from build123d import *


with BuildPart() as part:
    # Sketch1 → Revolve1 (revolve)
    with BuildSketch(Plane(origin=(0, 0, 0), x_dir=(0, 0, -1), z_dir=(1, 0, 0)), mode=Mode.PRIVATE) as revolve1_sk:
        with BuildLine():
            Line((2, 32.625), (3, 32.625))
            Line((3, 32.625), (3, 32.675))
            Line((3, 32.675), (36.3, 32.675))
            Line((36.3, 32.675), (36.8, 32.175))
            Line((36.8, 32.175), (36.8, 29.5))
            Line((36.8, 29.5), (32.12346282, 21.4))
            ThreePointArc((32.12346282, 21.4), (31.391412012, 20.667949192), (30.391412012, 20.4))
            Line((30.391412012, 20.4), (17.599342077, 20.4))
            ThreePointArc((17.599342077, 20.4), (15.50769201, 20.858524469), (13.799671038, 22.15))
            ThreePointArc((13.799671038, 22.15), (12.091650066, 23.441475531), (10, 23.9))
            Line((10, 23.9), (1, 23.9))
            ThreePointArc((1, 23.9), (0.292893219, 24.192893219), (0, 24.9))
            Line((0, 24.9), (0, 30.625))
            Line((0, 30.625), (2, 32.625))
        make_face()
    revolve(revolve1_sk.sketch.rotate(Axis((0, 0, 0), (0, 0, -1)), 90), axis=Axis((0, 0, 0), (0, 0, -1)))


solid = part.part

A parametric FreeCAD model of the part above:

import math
import FreeCAD as App
import Part
import Sketcher

V = App.Vector
Q = App.Units.Quantity

doc = App.newDocument("Part")
body = doc.addObject("PartDesign::Body", "Body")

# Sketch on YZ plane
sketch1 = body.newObject("Sketcher::SketchObject", "Sketch")
sketch1.AttachmentSupport = (doc.getObject("YZ_Plane"), [""])
sketch1.MapMode = "FlatFace"
sketch1.addGeometry(Part.LineSegment(V(32.625, -3, 0), V(32.625, -2, 0)), False)
sketch1.addGeometry(Part.LineSegment(V(32.625, -2, 0), V(30.625, 0, 0)), False)
sketch1.addGeometry(Part.LineSegment(V(30.625, 0, 0), V(24.9, 0, 0)), False)
sketch1.addGeometry(Part.ArcOfCircle(Part.Circle(V(24.9, -1, 0), V(0, 0, 1), 1), math.radians(90), math.radians(180)), False)
sketch1.addGeometry(Part.LineSegment(V(23.9, -1, 0), V(23.9, -10, 0)), False)
sketch1.addGeometry(Part.ArcOfCircle(Part.Circle(V(18.9, -10, 0), V(0, 0, 1), 5), math.radians(-49), math.radians(0)), False)
sketch1.addGeometry(Part.ArcOfCircle(Part.Circle(V(25.4, -17.599, 0), V(0, 0, 1), 5), math.radians(131), math.radians(180)), False)
sketch1.addGeometry(Part.LineSegment(V(20.4, -17.599, 0), V(20.4, -30.391, 0)), False)
sketch1.addGeometry(Part.ArcOfCircle(Part.Circle(V(22.4, -30.391, 0), V(0, 0, 1), 2), math.radians(180), math.radians(240)), False)
sketch1.addGeometry(Part.LineSegment(V(21.4, -32.123, 0), V(29.5, -36.8, 0)), False)
sketch1.addGeometry(Part.LineSegment(V(29.5, -36.8, 0), V(32.175, -36.8, 0)), False)
sketch1.addGeometry(Part.LineSegment(V(32.175, -36.8, 0), V(32.675, -36.3, 0)), False)
sketch1.addGeometry(Part.LineSegment(V(32.675, -36.3, 0), V(32.675, -3, 0)), False)
sketch1.addGeometry(Part.LineSegment(V(32.675, -3, 0), V(32.625, -3, 0)), False)
sketch1.addConstraint(Sketcher.Constraint("Coincident", 0, 2, 1, 1))
sketch1.addConstraint(Sketcher.Constraint("Coincident", 1, 2, 2, 1))
sketch1.addConstraint(Sketcher.Constraint("Tangent", 2, 2, 3, 1))
sketch1.addConstraint(Sketcher.Constraint("Tangent", 3, 2, 4, 1))
sketch1.addConstraint(Sketcher.Constraint("Tangent", 4, 2, 5, 2))
sketch1.addConstraint(Sketcher.Constraint("Tangent", 5, 1, 6, 1))
sketch1.addConstraint(Sketcher.Constraint("Tangent", 6, 2, 7, 1))
sketch1.addConstraint(Sketcher.Constraint("Tangent", 7, 2, 8, 1))
sketch1.addConstraint(Sketcher.Constraint("Tangent", 8, 2, 9, 1))
sketch1.addConstraint(Sketcher.Constraint("Coincident", 9, 2, 10, 1))
sketch1.addConstraint(Sketcher.Constraint("Coincident", 10, 2, 11, 1))
sketch1.addConstraint(Sketcher.Constraint("Coincident", 11, 2, 12, 1))
sketch1.addConstraint(Sketcher.Constraint("Coincident", 12, 2, 13, 1))
sketch1.addConstraint(Sketcher.Constraint("Coincident", 13, 2, 0, 1))
sketch1.addConstraint(Sketcher.Constraint("Vertical", 0))
sketch1.addConstraint(Sketcher.Constraint("Horizontal", 2))
sketch1.addConstraint(Sketcher.Constraint("Vertical", 4))
sketch1.addConstraint(Sketcher.Constraint("Vertical", 7))
sketch1.addConstraint(Sketcher.Constraint("Horizontal", 10))
sketch1.addConstraint(Sketcher.Constraint("Vertical", 12))
sketch1.addConstraint(Sketcher.Constraint("Horizontal", 13))
sketch1.addConstraint(Sketcher.Constraint("Equal", 5, 6))
sketch1.addConstraint(Sketcher.Constraint("PointOnObject", 1, 2, -1))
sketch1.addConstraint(Sketcher.Constraint("Perpendicular", 1, 11))
sketch1.addConstraint(Sketcher.Constraint("Radius", 3, Q("1 mm")))
sketch1.addConstraint(Sketcher.Constraint("Radius", 5, Q("5 mm")))
sketch1.addConstraint(Sketcher.Constraint("Radius", 8, Q("2 mm")))
sketch1.addConstraint(Sketcher.Constraint("DistanceY", 0, 1, 0, 2, Q("1 mm")))
sketch1.addConstraint(Sketcher.Constraint("DistanceY", 4, 2, 4, 1, Q("9 mm")))
sketch1.addConstraint(Sketcher.Constraint("Angle", 1, Q("135 deg")))
sketch1.addConstraint(Sketcher.Constraint("Angle", 9, Q("-30 deg")))
sketch1.addConstraint(Sketcher.Constraint("DistanceY", 12, 1, 12, 2, Q("33.3 mm")))
sketch1.addConstraint(Sketcher.Constraint("DistanceY", 0, 2, -1, 1, Q("2 mm")))
sketch1.addConstraint(Sketcher.Constraint("DistanceX", 13, 2, 13, 1, Q("0.05 mm")))
sketch1.addConstraint(Sketcher.Constraint("DistanceX", -1, 1, 3, 3, Q("24.9 mm")))
sketch1.addConstraint(Sketcher.Constraint("DistanceX", -1, 1, 6, 3, Q("25.4 mm")))
sketch1.addConstraint(Sketcher.Constraint("DistanceX", -1, 1, 9, 2, Q("29.5 mm")))
sketch1.addConstraint(Sketcher.Constraint("DistanceY", 9, 2, -1, 1, Q("36.8 mm")))
sketch1.addConstraint(Sketcher.Constraint("DistanceX", 2, 2, 2, 1, Q("5.725 mm")))
revolution = body.newObject("PartDesign::Revolution", "Revolution")
revolution.Profile = sketch1
revolution.ReferenceAxis = (sketch1, ["V_Axis"])
revolution.Angle = 360

doc.recompute()
